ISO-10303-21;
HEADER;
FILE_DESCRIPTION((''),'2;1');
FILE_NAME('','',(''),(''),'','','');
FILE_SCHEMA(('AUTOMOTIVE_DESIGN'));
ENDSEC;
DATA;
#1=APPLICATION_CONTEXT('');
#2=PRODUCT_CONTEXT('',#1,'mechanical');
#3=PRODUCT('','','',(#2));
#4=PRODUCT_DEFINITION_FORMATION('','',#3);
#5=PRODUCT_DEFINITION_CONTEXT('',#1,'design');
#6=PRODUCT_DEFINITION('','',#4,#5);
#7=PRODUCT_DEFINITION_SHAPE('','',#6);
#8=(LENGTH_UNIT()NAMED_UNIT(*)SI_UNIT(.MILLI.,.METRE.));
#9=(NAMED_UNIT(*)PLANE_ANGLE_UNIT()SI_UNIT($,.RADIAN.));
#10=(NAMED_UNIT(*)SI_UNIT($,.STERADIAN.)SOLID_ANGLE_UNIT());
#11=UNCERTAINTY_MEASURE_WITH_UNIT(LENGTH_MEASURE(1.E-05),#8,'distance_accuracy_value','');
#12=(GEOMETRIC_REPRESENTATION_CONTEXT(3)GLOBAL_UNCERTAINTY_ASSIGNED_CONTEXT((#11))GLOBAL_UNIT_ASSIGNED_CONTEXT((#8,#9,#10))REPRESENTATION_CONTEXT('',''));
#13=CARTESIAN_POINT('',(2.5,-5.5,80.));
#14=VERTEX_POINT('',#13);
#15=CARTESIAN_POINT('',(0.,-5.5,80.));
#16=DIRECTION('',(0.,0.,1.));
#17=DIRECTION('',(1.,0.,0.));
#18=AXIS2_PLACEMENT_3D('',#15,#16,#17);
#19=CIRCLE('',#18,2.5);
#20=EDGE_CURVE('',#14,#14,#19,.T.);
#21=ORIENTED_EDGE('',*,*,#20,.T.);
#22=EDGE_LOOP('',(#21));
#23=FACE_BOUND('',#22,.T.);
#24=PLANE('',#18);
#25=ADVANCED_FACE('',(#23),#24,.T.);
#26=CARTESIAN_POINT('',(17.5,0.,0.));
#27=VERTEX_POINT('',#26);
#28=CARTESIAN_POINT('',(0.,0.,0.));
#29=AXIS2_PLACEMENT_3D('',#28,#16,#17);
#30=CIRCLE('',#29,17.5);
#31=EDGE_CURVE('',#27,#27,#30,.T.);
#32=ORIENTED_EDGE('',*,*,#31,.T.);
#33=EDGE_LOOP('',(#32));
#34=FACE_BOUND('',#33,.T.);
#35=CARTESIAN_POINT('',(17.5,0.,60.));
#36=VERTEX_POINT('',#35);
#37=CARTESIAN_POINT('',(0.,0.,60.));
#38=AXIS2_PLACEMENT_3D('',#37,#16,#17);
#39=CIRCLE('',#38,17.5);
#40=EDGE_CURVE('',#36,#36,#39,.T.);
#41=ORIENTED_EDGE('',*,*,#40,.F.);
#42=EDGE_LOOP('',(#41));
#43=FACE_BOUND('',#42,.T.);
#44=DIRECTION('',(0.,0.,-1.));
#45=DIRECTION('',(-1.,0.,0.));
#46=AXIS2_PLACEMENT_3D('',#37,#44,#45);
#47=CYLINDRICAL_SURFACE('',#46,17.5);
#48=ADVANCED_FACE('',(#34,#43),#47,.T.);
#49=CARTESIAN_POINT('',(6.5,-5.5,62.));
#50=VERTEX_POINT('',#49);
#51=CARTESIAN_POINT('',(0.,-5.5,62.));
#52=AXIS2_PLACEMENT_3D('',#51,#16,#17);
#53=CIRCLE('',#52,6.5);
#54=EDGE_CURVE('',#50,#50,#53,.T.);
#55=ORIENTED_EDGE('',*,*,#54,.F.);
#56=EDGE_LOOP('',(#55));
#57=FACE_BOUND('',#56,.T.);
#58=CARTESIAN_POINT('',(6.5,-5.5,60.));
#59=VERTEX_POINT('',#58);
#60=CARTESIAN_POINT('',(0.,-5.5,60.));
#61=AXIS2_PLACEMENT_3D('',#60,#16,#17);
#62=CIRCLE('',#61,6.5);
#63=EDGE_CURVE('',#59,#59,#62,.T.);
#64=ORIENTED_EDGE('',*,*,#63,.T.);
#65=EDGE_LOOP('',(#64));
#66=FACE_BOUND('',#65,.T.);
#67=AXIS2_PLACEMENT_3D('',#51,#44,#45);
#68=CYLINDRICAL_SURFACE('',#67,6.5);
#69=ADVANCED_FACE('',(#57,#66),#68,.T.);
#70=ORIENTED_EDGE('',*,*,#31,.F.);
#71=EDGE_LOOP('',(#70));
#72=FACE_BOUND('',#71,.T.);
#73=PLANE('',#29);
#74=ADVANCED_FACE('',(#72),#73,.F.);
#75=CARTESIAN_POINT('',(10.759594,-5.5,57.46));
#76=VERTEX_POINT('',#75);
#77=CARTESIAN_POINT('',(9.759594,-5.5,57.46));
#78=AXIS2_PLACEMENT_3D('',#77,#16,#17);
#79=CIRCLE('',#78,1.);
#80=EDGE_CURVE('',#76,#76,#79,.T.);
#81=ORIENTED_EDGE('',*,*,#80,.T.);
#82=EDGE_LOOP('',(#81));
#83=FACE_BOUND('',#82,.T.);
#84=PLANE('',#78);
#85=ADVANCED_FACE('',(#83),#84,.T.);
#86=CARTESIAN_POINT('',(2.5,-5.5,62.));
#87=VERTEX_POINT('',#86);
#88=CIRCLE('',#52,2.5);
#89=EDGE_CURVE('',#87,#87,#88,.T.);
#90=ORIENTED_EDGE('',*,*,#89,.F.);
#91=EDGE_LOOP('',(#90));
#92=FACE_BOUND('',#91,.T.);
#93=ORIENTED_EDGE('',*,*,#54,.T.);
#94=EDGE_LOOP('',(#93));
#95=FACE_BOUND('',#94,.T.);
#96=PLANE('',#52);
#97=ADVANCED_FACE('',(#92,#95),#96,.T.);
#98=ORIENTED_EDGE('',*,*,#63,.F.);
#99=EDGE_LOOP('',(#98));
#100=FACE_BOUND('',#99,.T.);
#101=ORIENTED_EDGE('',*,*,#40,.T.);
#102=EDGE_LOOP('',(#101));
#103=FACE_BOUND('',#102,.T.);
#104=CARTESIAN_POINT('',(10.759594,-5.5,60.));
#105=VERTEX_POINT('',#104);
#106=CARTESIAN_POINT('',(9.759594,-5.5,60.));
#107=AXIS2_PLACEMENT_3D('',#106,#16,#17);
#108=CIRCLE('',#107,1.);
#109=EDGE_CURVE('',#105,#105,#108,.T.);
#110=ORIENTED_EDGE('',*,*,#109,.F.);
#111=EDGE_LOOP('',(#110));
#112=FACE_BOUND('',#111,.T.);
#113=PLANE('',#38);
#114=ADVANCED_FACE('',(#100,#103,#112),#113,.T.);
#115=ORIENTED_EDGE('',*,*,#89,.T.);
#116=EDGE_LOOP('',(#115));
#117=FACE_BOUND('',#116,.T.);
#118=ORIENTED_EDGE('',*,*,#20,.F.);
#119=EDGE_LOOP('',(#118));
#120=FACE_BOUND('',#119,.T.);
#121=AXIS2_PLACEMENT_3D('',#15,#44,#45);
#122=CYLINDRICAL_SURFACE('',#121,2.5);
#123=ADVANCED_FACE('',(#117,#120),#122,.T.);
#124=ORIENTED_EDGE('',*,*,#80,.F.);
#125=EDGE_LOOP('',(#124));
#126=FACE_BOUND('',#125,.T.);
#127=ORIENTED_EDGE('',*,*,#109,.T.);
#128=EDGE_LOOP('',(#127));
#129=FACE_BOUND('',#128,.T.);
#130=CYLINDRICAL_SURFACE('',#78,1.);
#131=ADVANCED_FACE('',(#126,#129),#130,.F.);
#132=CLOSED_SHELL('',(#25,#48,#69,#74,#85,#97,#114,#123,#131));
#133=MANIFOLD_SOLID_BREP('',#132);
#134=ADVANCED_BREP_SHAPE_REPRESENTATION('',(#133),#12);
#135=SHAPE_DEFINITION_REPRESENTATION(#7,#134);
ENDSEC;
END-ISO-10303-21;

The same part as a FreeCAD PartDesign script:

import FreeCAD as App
import Part
import Sketcher

V = App.Vector
Q = App.Units.Quantity

doc = App.newDocument("Part")
params = doc.addObject("Spreadsheet::Sheet", "Params")
for row, (alias, value) in enumerate([
    ("sketch1_diameter", "35 mm"),
    ("pad1_length", "60 mm"),
    ("sketch2_diameter", "5 mm"),
    ("pad2_length", "20 mm"),
    ("sketch3_diameter", "13 mm"),
    ("pad3_length", "2 mm"),
    ("sketch4_diameter", "2 mm"),
    ("pocket1_length", "2.54 mm"),
], start=1):
    params.set(f"A{row}", alias)
    params.set(f"B{row}", "=" + value)
    params.setAlias(f"B{row}", alias)

body = doc.addObject("PartDesign::Body", "Body")

# Sketch on XY plane
sketch1 = body.newObject("Sketcher::SketchObject", "Sketch")
sketch1.AttachmentSupport = (doc.getObject("XY_Plane"), [""])
sketch1.MapMode = "FlatFace"
sketch1.addGeometry(Part.Circle(V(0, 0, 0), V(0, 0, 1), 17.5), False)
sketch1.addConstraint([
    Sketcher.Constraint("Coincident", 0, 3, -1, 1),
    Sketcher.Constraint("Diameter", 0, Q("35 mm")),
])
sketch1.setExpression("Constraints[1]", "Params.sketch1_diameter")
pad1 = body.newObject("PartDesign::Pad", "Pad")
pad1.Profile = sketch1
pad1.setExpression("Length", "Params.pad1_length")

# Sketch on XY plane
sketch2 = body.newObject("Sketcher::SketchObject", "Sketch001")
sketch2.AttachmentSupport = (doc.getObject("XY_Plane"), [""])
sketch2.MapMode = "FlatFace"
sketch2.AttachmentOffset = App.Placement(V(0, 0, 60), App.Rotation())
sketch2.addGeometry(Part.Circle(V(0, -5.5, 0), V(0, 0, 1), 2.5), False)
sketch2.addConstraint([
    Sketcher.Constraint("PointOnObject", 0, 3, -2),
    Sketcher.Constraint("Diameter", 0, Q("5 mm")),
    Sketcher.Constraint("DistanceY", 0, 3, -1, 1, Q("5.5 mm")),
])
sketch2.setExpression("Constraints[1]", "Params.sketch2_diameter")
pad2 = body.newObject("PartDesign::Pad", "Pad001")
pad2.Profile = sketch2
pad2.setExpression("Length", "Params.pad2_length")

# Sketch on XY plane
sketch3 = body.newObject("Sketcher::SketchObject", "Sketch002")
sketch3.AttachmentSupport = (doc.getObject("XY_Plane"), [""])
sketch3.MapMode = "FlatFace"
sketch3.AttachmentOffset = App.Placement(V(0, 0, 60), App.Rotation())
sketch3.addGeometry(Part.Circle(V(0, -5.5, 0), V(0, 0, 1), 6.5), False)
sketch3.addConstraint([
    Sketcher.Constraint("PointOnObject", 0, 3, -2),
    Sketcher.Constraint("Diameter", 0, Q("13 mm")),
    Sketcher.Constraint("DistanceY", 0, 3, -1, 1, Q("5.5 mm")),
])
sketch3.setExpression("Constraints[1]", "Params.sketch3_diameter")
pad3 = body.newObject("PartDesign::Pad", "Pad002")
pad3.Profile = sketch3
pad3.setExpression("Length", "Params.pad3_length")

# Sketch on XY plane
sketch4 = body.newObject("Sketcher::SketchObject", "Sketch003")
sketch4.AttachmentSupport = (doc.getObject("XY_Plane"), [""])
sketch4.MapMode = "FlatFace"
sketch4.AttachmentOffset = App.Placement(V(0, 0, 60), App.Rotation())
sketch4.addGeometry(Part.Circle(V(9.759594, -5.5, 0), V(0, 0, 1), 1), False)
sketch4.addConstraint([
    Sketcher.Constraint("Diameter", 0, Q("2 mm")),
    Sketcher.Constraint("DistanceY", 0, 3, -1, 1, Q("5.5 mm")),
    Sketcher.Constraint("DistanceX", -1, 1, 0, 3, Q("9.759594 mm")),
])
sketch4.setExpression("Constraints[0]", "Params.sketch4_diameter")
pocket1 = body.newObject("PartDesign::Pocket", "Pocket")
pocket1.Profile = sketch4
pocket1.setExpression("Length", "Params.pocket1_length")

doc.recompute()
